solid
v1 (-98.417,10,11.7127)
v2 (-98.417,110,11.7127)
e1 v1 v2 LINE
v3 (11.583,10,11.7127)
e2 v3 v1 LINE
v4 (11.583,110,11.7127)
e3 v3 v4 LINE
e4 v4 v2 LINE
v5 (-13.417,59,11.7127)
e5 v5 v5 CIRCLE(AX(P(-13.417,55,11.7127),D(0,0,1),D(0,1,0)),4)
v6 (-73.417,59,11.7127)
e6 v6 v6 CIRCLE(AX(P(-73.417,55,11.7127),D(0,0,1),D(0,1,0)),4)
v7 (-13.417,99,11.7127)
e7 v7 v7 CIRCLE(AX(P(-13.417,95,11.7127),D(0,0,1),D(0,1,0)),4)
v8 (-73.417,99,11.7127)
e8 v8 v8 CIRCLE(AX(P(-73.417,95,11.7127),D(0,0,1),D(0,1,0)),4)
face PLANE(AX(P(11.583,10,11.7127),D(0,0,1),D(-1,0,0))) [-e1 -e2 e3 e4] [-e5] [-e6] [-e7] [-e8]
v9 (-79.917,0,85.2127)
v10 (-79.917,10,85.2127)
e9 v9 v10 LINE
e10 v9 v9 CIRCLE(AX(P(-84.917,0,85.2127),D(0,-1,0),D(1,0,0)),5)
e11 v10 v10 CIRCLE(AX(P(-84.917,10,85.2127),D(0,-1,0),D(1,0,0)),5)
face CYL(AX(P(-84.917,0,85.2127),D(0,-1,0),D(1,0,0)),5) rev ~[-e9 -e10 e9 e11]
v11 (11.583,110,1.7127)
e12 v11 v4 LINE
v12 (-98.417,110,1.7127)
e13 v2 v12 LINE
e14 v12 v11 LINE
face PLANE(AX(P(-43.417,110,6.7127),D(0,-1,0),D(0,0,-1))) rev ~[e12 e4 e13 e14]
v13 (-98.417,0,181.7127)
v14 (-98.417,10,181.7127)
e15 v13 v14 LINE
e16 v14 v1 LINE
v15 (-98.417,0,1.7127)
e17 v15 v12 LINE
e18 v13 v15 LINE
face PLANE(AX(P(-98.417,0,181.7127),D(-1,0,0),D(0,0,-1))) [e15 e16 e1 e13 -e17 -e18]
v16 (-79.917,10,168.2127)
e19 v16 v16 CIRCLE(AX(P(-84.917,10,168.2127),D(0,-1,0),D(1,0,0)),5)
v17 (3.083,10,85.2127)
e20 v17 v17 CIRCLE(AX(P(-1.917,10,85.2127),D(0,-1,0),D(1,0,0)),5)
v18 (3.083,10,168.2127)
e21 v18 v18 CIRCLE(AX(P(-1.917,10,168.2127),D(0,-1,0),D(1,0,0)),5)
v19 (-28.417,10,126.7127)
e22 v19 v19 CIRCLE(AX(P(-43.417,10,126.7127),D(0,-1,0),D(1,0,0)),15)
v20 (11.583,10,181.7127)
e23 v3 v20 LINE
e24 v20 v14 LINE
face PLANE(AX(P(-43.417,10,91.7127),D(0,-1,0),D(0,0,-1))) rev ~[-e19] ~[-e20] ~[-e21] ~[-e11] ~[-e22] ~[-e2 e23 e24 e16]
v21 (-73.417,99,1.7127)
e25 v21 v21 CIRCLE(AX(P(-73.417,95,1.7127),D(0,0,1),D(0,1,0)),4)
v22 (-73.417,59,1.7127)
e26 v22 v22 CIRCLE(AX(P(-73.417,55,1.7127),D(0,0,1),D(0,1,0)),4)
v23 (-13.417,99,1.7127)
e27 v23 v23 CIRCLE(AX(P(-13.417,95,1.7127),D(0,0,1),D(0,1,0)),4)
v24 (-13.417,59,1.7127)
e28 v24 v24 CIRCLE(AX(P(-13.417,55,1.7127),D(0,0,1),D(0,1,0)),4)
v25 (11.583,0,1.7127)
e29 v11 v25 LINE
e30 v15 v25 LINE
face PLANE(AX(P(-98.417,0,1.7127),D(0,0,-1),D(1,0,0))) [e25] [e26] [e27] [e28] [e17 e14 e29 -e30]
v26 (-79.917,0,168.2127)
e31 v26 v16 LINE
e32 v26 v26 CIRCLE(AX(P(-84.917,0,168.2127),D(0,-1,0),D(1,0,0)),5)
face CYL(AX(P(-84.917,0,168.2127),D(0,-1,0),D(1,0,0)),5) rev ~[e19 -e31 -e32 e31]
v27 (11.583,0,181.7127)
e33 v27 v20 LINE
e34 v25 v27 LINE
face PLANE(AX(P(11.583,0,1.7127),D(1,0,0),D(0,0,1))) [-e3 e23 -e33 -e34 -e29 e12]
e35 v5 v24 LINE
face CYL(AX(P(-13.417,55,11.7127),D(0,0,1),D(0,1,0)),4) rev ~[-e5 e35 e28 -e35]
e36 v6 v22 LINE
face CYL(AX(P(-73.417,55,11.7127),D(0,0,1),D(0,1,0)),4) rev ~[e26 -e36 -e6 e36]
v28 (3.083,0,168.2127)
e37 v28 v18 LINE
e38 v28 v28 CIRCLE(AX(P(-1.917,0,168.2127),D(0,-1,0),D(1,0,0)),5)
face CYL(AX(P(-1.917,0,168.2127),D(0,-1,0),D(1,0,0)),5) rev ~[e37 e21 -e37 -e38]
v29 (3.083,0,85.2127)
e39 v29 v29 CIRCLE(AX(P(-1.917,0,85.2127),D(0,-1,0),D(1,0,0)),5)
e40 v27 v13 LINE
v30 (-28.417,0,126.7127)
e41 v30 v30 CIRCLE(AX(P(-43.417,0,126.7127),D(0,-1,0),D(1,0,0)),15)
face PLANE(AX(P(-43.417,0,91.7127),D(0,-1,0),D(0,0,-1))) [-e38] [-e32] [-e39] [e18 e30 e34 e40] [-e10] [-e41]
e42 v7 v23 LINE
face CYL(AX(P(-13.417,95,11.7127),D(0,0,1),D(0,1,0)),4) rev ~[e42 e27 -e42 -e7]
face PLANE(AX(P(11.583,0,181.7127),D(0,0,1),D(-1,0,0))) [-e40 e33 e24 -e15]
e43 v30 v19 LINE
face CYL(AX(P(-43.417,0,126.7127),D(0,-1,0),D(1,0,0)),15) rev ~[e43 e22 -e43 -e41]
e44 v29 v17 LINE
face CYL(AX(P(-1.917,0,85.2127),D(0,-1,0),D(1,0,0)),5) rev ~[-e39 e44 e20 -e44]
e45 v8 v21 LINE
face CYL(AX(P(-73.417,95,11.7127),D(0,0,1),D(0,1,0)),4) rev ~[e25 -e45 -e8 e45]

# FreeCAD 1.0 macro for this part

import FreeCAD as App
import Part
import Sketcher

V = App.Vector


def add_polygon(sketch, points):
    """Adds a closed chain of lines whose ends are joined by coincident constraints."""
    first, n = sketch.GeometryCount, len(points)
    for a, b in zip(points, points[1:] + points[:1]):
        sketch.addGeometry(Part.LineSegment(App.Vector(*a, 0), App.Vector(*b, 0)), False)
    for i in range(n):
        sketch.addConstraint(Sketcher.Constraint("Coincident", first + i, 2, first + (i + 1) % n, 1))

doc = App.newDocument("Part")
body = doc.addObject("PartDesign::Body", "Body")

# Sketch on XZ plane
sketch1 = body.newObject("Sketcher::SketchObject", "Sketch")
sketch1.AttachmentSupport = (doc.getObject("XZ_Plane"), [""])
sketch1.MapMode = "FlatFace"
add_polygon(sketch1, [(-98, 182), (-98, 2), (12, 2), (12, 182)])  # lines 0-3
sketch1.addConstraint([
    Sketcher.Constraint("Vertical", 0),
    Sketcher.Constraint("Horizontal", 1),
    Sketcher.Constraint("Vertical", 2),
    Sketcher.Constraint("Horizontal", 3),
    Sketcher.Constraint("DistanceX", 1, 1, 1, 2, 110.0),
    Sketcher.Constraint("DistanceY", 0, 2, 0, 1, 180.0),
    Sketcher.Constraint("DistanceX", 0, 2, -1, 1, 98.417),
    Sketcher.Constraint("DistanceY", -1, 1, 0, 2, 1.7127),
])
pad1 = body.newObject("PartDesign::Pad", "Pad")
pad1.Profile = sketch1
pad1.Length = 10
pad1.Reversed = True

# Sketch on XZ plane
sketch2 = body.newObject("Sketcher::SketchObject", "Sketch001")
sketch2.AttachmentSupport = (doc.getObject("XZ_Plane"), [""])
sketch2.MapMode = "FlatFace"
sketch2.addGeometry([
    Part.Circle(V(-85, 168, 0), V(0, 0, 1), 5),  # 0
    Part.Circle(V(-2, 168, 0), V(0, 0, 1), 5),  # 1
    Part.Circle(V(-85, 85, 0), V(0, 0, 1), 5),  # 2
    Part.Circle(V(-2, 85, 0), V(0, 0, 1), 5),  # 3
    Part.Circle(V(-43, 127, 0), V(0, 0, 1), 15),  # 4
], False)
sketch2.addConstraint([
    Sketcher.Constraint("Equal", 0, 1),
    Sketcher.Constraint("Equal", 1, 2),
    Sketcher.Constraint("Equal", 2, 3),
    Sketcher.Constraint("Horizontal", 0, 3, 1, 3),
    Sketcher.Constraint("Horizontal", 2, 3, 3, 3),
    Sketcher.Constraint("Vertical", 0, 3, 2, 3),
    Sketcher.Constraint("Vertical", 1, 3, 3, 3),
    Sketcher.Constraint("Diameter", 0, 10.0),
    Sketcher.Constraint("Diameter", 4, 30.0),
    Sketcher.Constraint("DistanceX", 0, 3, 1, 3, 83.0),
    Sketcher.Constraint("DistanceY", 2, 3, 0, 3, 83.0),
    Sketcher.Constraint("DistanceX", 2, 3, 4, 3, 41.5),
    Sketcher.Constraint("DistanceY", 2, 3, 4, 3, 41.5),
    Sketcher.Constraint("DistanceX", 0, 3, -1, 1, 84.917),
    Sketcher.Constraint("DistanceY", -1, 1, 0, 3, 168.2127),
])
pocket1 = body.newObject("PartDesign::Pocket", "Pocket")
pocket1.Profile = sketch2
pocket1.Type = "ThroughAll"

# Sketch on XZ plane
sketch3 = body.newObject("Sketcher::SketchObject", "Sketch002")
sketch3.AttachmentSupport = (doc.getObject("XZ_Plane"), [""])
sketch3.MapMode = "FlatFace"
sketch3.AttachmentOffset = App.Placement(V(0, 0, -10), App.Rotation())
add_polygon(sketch3, [(12, 2), (-98, 2), (-98, 12), (12, 12)])  # lines 0-3
sketch3.addConstraint([
    Sketcher.Constraint("Horizontal", 0),
    Sketcher.Constraint("Vertical", 1),
    Sketcher.Constraint("Horizontal", 2),
    Sketcher.Constraint("Vertical", 3),
    Sketcher.Constraint("DistanceX", 0, 2, 0, 1, 110.0),
    Sketcher.Constraint("DistanceY", 1, 1, 1, 2, 10.0),
    Sketcher.Constraint("DistanceX", 0, 2, -1, 1, 98.417),
    Sketcher.Constraint("DistanceY", -1, 1, 0, 2, 1.7127),
])
pad2 = body.newObject("PartDesign::Pad", "Pad001")
pad2.Profile = sketch3
pad2.Length = 100
pad2.Reversed = True

# Sketch on XY plane
sketch4 = body.newObject("Sketcher::SketchObject", "Sketch003")
sketch4.AttachmentSupport = (doc.getObject("XY_Plane"), [""])
sketch4.MapMode = "FlatFace"
sketch4.AttachmentOffset = App.Placement(V(0, 0, 11.7127), App.Rotation())
sketch4.addGeometry([
    Part.Circle(V(-73.4, 95, 0), V(0, 0, 1), 4),
    Part.Circle(V(-13.4, 55, 0), V(0, 0, 1), 4),
    Part.Circle(V(-13.4, 95, 0), V(0, 0, 1), 4),
    Part.Circle(V(-73.4, 55, 0), V(0, 0, 1), 4),
], False)
sketch4.addConstraint([
    Sketcher.Constraint("Equal", 0, 1),
    Sketcher.Constraint("Equal", 1, 2),
    Sketcher.Constraint("Equal", 2, 3),
    Sketcher.Constraint("Horizontal", 0, 3, 2, 3),
    Sketcher.Constraint("Horizontal", 1, 3, 3, 3),
    Sketcher.Constraint("Vertical", 1, 3, 2, 3),
    Sketcher.Constraint("Vertical", 0, 3, 3, 3),
    Sketcher.Constraint("Diameter", 0, 8.0),
    Sketcher.Constraint("DistanceY", -1, 1, 0, 3, 95.0),
    Sketcher.Constraint("DistanceY", -1, 1, 1, 3, 55.0),
    Sketcher.Constraint("DistanceX", 0, 3, 1, 3, 60.0),
    Sketcher.Constraint("DistanceX", 0, 3, -1, 1, 73.417),
])
pocket2 = body.newObject("PartDesign::Pocket", "Pocket001")
pocket2.Profile = sketch4
pocket2.Type = "UpToFirst"

doc.recompute()
